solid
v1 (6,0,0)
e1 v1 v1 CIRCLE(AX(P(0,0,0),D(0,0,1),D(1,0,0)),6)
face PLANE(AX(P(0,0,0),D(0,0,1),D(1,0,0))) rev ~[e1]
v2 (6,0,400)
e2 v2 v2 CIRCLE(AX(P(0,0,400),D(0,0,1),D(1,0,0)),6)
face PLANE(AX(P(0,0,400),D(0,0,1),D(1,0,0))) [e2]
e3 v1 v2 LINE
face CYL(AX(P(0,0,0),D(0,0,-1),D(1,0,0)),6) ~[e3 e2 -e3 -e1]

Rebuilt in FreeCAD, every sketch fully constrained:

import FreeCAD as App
import Part
import Sketcher
from FreeCAD import Vector

doc = App.newDocument("Part")
body = doc.addObject("PartDesign::Body", "Body")

# Sketch on XY plane
sketch1 = body.newObject("Sketcher::SketchObject", "Sketch")
sketch1.AttachmentSupport = (doc.getObject("XY_Plane"), [""])
sketch1.MapMode = "FlatFace"
sketch1.addGeometry(Part.Circle(Vector(0, 0, 0), Vector(0, 0, 1), 6), False)
sketch1.addConstraint([
    Sketcher.Constraint("Coincident", 0, 3, -1, 1),
    Sketcher.Constraint("Diameter", 0, 12.0),
])
pad1 = body.newObject("PartDesign::Pad", "Pad")
pad1.Profile = sketch1
pad1.Length = 400

doc.recompute()
